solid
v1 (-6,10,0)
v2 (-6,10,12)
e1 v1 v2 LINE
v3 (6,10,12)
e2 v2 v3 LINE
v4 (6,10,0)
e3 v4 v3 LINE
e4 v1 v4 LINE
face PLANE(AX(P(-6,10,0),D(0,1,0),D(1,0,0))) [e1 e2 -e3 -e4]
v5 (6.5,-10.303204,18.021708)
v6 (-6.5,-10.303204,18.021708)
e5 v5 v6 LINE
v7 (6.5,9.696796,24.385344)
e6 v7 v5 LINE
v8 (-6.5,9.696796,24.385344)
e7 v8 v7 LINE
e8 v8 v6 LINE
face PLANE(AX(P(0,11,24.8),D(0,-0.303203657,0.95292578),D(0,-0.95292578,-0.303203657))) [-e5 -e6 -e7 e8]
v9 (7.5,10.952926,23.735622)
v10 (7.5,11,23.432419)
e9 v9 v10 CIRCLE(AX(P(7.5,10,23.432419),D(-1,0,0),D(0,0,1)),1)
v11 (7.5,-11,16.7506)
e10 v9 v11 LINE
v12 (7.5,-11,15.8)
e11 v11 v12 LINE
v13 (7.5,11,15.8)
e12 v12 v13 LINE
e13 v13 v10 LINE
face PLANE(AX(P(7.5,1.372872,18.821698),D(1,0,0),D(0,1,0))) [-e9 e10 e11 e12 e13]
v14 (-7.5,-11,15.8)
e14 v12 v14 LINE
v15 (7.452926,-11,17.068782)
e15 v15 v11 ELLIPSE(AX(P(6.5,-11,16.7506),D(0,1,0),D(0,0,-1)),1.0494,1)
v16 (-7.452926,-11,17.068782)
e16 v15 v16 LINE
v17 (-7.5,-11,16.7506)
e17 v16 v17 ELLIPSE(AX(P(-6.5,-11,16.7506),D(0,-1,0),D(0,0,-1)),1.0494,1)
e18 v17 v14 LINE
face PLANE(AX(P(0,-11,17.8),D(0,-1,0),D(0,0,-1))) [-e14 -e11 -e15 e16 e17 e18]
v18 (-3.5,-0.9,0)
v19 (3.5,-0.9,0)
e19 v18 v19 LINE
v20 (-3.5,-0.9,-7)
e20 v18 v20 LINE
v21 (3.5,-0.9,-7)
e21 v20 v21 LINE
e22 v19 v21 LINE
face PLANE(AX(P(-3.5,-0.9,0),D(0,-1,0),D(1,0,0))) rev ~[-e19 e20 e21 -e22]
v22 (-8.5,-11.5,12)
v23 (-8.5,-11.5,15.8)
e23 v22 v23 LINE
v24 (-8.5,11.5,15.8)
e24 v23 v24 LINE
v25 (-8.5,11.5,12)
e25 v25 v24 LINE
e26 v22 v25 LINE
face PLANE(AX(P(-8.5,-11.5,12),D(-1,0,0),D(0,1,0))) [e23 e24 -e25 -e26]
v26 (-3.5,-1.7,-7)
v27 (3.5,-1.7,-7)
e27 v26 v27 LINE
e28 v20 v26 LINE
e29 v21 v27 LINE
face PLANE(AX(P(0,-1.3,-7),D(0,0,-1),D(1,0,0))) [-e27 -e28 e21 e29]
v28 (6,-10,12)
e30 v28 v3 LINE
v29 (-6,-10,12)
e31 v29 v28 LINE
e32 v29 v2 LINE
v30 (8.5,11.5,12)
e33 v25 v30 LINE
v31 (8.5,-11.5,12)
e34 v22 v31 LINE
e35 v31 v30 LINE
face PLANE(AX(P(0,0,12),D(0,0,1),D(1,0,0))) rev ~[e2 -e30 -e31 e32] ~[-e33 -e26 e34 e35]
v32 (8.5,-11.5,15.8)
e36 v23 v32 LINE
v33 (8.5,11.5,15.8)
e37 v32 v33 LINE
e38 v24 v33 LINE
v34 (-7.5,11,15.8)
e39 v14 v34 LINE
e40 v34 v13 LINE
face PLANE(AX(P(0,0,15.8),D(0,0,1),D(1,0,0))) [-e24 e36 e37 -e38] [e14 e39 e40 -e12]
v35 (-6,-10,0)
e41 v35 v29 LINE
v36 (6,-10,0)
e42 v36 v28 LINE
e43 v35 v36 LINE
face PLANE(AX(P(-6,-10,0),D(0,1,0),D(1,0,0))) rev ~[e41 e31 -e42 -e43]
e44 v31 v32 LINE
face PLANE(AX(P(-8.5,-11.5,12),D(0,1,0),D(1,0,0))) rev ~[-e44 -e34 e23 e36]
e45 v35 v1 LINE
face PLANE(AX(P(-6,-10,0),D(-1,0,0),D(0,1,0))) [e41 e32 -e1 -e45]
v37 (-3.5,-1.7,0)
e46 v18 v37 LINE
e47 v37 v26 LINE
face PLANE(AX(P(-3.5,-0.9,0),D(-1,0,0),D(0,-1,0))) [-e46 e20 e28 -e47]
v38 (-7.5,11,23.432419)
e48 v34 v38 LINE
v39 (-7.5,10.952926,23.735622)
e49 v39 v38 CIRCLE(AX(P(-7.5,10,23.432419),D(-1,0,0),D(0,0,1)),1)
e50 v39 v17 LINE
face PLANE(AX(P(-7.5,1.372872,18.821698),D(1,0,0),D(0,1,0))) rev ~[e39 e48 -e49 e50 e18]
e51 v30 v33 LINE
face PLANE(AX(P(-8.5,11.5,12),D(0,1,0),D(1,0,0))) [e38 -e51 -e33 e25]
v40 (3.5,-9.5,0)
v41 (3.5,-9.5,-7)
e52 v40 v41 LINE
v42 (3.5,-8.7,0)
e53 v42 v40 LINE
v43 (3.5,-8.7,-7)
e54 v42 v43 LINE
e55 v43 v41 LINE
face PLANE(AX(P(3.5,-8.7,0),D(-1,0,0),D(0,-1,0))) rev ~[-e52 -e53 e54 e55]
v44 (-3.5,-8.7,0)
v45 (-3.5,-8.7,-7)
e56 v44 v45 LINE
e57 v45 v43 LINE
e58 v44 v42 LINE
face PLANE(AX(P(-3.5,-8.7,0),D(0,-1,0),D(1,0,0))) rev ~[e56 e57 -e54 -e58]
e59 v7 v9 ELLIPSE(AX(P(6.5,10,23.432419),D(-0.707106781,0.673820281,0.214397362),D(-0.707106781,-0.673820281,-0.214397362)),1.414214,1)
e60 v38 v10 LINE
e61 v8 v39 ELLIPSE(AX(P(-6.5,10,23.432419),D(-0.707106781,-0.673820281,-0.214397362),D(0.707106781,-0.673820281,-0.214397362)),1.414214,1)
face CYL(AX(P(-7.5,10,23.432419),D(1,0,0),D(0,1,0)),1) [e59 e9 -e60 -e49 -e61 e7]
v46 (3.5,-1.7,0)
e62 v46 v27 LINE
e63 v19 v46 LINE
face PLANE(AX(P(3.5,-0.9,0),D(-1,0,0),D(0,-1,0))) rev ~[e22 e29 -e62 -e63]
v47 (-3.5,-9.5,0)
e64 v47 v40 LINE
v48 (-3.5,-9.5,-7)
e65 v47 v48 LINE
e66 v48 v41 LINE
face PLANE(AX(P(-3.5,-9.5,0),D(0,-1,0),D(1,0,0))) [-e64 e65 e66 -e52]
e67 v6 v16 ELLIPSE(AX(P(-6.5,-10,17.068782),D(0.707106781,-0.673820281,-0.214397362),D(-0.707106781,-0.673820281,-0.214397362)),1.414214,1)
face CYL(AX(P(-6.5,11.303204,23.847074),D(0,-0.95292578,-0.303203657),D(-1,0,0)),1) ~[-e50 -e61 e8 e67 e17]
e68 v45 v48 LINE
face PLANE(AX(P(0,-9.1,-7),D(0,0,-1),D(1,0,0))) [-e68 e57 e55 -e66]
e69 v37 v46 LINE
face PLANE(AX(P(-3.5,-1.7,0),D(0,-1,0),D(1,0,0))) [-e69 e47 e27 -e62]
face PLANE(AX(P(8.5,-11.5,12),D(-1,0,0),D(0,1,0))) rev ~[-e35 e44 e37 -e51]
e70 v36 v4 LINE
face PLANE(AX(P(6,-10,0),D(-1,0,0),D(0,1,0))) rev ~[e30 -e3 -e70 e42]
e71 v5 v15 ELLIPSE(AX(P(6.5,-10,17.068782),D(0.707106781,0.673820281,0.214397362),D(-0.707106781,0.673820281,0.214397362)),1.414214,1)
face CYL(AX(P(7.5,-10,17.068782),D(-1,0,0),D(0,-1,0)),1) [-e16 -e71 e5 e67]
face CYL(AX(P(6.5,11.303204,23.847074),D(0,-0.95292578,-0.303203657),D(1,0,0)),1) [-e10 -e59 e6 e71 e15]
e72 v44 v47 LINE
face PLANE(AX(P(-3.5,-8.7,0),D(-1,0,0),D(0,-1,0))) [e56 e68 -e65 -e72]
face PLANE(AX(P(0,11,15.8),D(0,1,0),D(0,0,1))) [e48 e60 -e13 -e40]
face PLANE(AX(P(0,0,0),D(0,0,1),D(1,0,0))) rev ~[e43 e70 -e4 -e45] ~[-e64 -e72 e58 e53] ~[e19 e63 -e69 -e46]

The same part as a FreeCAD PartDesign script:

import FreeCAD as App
import Part
import Sketcher
from FreeCAD import Vector


def edges_at(feature, points):
    """Names of the edges that pass closest to the given points."""
    edges = feature.Shape.Edges
    near = lambda p: min(range(len(edges)), key=lambda i: edges[i].distToShape(Part.Vertex(*p))[0])
    return sorted({f"Edge{near(p) + 1}" for p in points})

doc = App.newDocument("Part")
body = doc.addObject("PartDesign::Body", "Body")

sketch1 = body.newObject("Sketcher::SketchObject", "Sketch")
sketch1.AttachmentSupport = (doc.getObject("XY_Plane"), [""])
sketch1.MapMode = "FlatFace"
sketch1.addGeometry([
    Part.LineSegment(Vector(-6, 10, 0), Vector(-6, -10, 0)),
    Part.LineSegment(Vector(-6, -10, 0), Vector(6, -10, 0)),
    Part.LineSegment(Vector(6, -10, 0), Vector(6, 10, 0)),
    Part.LineSegment(Vector(6, 10, 0), Vector(-6, 10, 0)),
], False)
sketch1.addConstraint([
    Sketcher.Constraint("Coincident", 0, 2, 1, 1),
    Sketcher.Constraint("Coincident", 1, 2, 2, 1),
    Sketcher.Constraint("Coincident", 2, 2, 3, 1),
    Sketcher.Constraint("Coincident", 3, 2, 0, 1),
    Sketcher.Constraint("Vertical", 0),
    Sketcher.Constraint("Horizontal", 1),
    Sketcher.Constraint("Vertical", 2),
    Sketcher.Constraint("Horizontal", 3),
    Sketcher.Constraint("Symmetric", 0, 2, 2, 2, -1, 1),
    Sketcher.Constraint("DistanceX", 1, 1, 1, 2, 12.0),
    Sketcher.Constraint("DistanceY", 0, 2, 0, 1, 20.0),
])
pad1 = body.newObject("PartDesign::Pad", "Pad")
pad1.Profile = sketch1
pad1.Length = 12

sketch2 = body.newObject("Sketcher::SketchObject", "Sketch001")
sketch2.AttachmentSupport = (doc.getObject("XY_Plane"), [""])
sketch2.MapMode = "FlatFace"
sketch2.AttachmentOffset = App.Placement(Vector(0, 0, 12), App.Rotation())
sketch2.addGeometry([
    Part.LineSegment(Vector(-8.5, 11.5, 0), Vector(-8.5, -11.5, 0)),
    Part.LineSegment(Vector(-8.5, -11.5, 0), Vector(8.5, -11.5, 0)),
    Part.LineSegment(Vector(8.5, -11.5, 0), Vector(8.5, 11.5, 0)),
    Part.LineSegment(Vector(8.5, 11.5, 0), Vector(-8.5, 11.5, 0)),
], False)
sketch2.addConstraint([
    Sketcher.Constraint("Coincident", 0, 2, 1, 1),
    Sketcher.Constraint("Coincident", 1, 2, 2, 1),
    Sketcher.Constraint("Coincident", 2, 2, 3, 1),
    Sketcher.Constraint("Coincident", 3, 2, 0, 1),
    Sketcher.Constraint("Vertical", 0),
    Sketcher.Constraint("Horizontal", 1),
    Sketcher.Constraint("Vertical", 2),
    Sketcher.Constraint("Horizontal", 3),
    Sketcher.Constraint("Symmetric", 0, 2, 2, 2, -1, 1),
    Sketcher.Constraint("DistanceX", 1, 1, 1, 2, 17.0),
    Sketcher.Constraint("DistanceY", 0, 2, 0, 1, 23.0),
])
pad2 = body.newObject("PartDesign::Pad", "Pad001")
pad2.Profile = sketch2
pad2.Length = 3.8

sketch3 = body.newObject("Sketcher::SketchObject", "Sketch002")
sketch3.AttachmentSupport = (doc.getObject("XY_Plane"), [""])
sketch3.MapMode = "FlatFace"
sketch3.addGeometry([
    Part.LineSegment(Vector(-3.5, -9.5, 0), Vector(-3.5, -8.7, 0)),
    Part.LineSegment(Vector(-3.5, -8.7, 0), Vector(3.5, -8.7, 0)),
    Part.LineSegment(Vector(3.5, -8.7, 0), Vector(3.5, -9.5, 0)),
    Part.LineSegment(Vector(3.5, -9.5, 0), Vector(-3.5, -9.5, 0)),
    Part.LineSegment(Vector(-3.5, -1.7, 0), Vector(-3.5, -0.9, 0)),
    Part.LineSegment(Vector(-3.5, -0.9, 0), Vector(3.5, -0.9, 0)),
    Part.LineSegment(Vector(3.5, -0.9, 0), Vector(3.5, -1.7, 0)),
    Part.LineSegment(Vector(3.5, -1.7, 0), Vector(-3.5, -1.7, 0)),
], False)
sketch3.addConstraint([
    Sketcher.Constraint("Coincident", 0, 2, 1, 1),
    Sketcher.Constraint("Coincident", 1, 2, 2, 1),
    Sketcher.Constraint("Coincident", 2, 2, 3, 1),
    Sketcher.Constraint("Coincident", 3, 2, 0, 1),
    Sketcher.Constraint("Coincident", 4, 2, 5, 1),
    Sketcher.Constraint("Coincident", 5, 2, 6, 1),
    Sketcher.Constraint("Coincident", 6, 2, 7, 1),
    Sketcher.Constraint("Coincident", 7, 2, 4, 1),
    Sketcher.Constraint("Vertical", 0),
    Sketcher.Constraint("Horizontal", 1),
    Sketcher.Constraint("Vertical", 2),
    Sketcher.Constraint("Horizontal", 3),
    Sketcher.Constraint("Vertical", 4),
    Sketcher.Constraint("Horizontal", 5),
    Sketcher.Constraint("Vertical", 6),
    Sketcher.Constraint("Horizontal", 7),
    Sketcher.Constraint("Vertical", 3, 2, 4, 2),
    Sketcher.Constraint("Vertical", 2, 2, 5, 2),
    Sketcher.Constraint("Equal", 2, 4),
    Sketcher.Constraint("DistanceX", 1, 1, 1, 2, 7.0),
    Sketcher.Constraint("DistanceY", 0, 1, 0, 2, 0.8),
    Sketcher.Constraint("DistanceY", 1, 2, 6, 2, 7.0),
    Sketcher.Constraint("DistanceX", 0, 2, -1, 1, 3.5),
    Sketcher.Constraint("DistanceY", 0, 2, -1, 1, 8.7),
])
pad3 = body.newObject("PartDesign::Pad", "Pad002")
pad3.Profile = sketch3
pad3.Length = 7
pad3.Reversed = True

sketch4 = body.newObject("Sketcher::SketchObject", "Sketch003")
sketch4.AttachmentSupport = (doc.getObject("YZ_Plane"), [""])
sketch4.MapMode = "FlatFace"
sketch4.addGeometry([
    Part.LineSegment(Vector(-11, 15.8, 0), Vector(11, 15.8, 0)),
    Part.LineSegment(Vector(11, 15.8, 0), Vector(11, 24.8, 0)),
    Part.LineSegment(Vector(11, 24.8, 0), Vector(-11, 17.8, 0)),
    Part.LineSegment(Vector(-11, 17.8, 0), Vector(-11, 15.8, 0)),
], False)
sketch4.addConstraint([
    Sketcher.Constraint("Coincident", 0, 2, 1, 1),
    Sketcher.Constraint("Coincident", 1, 2, 2, 1),
    Sketcher.Constraint("Coincident", 2, 2, 3, 1),
    Sketcher.Constraint("Coincident", 3, 2, 0, 1),
    Sketcher.Constraint("Horizontal", 0),
    Sketcher.Constraint("Vertical", 1),
    Sketcher.Constraint("Vertical", 3),
    Sketcher.Constraint("DistanceX", 0, 1, 0, 2, 22.0),
    Sketcher.Constraint("DistanceY", 1, 1, 1, 2, 9.0),
    Sketcher.Constraint("DistanceY", 3, 2, 3, 1, 2.0),
    Sketcher.Constraint("DistanceX", -1, 1, 0, 2, 11.0),
    Sketcher.Constraint("DistanceY", -1, 1, 0, 2, 15.8),
])
pad4 = body.newObject("PartDesign::Pad", "Pad003")
pad4.Profile = sketch4
pad4.Length = 15
pad4.Midplane = True
doc.recompute()

fillet = body.newObject("PartDesign::Fillet", "Fillet")
fillet.Base = (pad4, edges_at(pad4, [
    (0, 11, 24.8),
    (-7.5, 0, 21.3),
    (0, -11, 17.8),
    (7.5, 0, 21.3),
]))
fillet.Radius = 1

doc.recompute()
